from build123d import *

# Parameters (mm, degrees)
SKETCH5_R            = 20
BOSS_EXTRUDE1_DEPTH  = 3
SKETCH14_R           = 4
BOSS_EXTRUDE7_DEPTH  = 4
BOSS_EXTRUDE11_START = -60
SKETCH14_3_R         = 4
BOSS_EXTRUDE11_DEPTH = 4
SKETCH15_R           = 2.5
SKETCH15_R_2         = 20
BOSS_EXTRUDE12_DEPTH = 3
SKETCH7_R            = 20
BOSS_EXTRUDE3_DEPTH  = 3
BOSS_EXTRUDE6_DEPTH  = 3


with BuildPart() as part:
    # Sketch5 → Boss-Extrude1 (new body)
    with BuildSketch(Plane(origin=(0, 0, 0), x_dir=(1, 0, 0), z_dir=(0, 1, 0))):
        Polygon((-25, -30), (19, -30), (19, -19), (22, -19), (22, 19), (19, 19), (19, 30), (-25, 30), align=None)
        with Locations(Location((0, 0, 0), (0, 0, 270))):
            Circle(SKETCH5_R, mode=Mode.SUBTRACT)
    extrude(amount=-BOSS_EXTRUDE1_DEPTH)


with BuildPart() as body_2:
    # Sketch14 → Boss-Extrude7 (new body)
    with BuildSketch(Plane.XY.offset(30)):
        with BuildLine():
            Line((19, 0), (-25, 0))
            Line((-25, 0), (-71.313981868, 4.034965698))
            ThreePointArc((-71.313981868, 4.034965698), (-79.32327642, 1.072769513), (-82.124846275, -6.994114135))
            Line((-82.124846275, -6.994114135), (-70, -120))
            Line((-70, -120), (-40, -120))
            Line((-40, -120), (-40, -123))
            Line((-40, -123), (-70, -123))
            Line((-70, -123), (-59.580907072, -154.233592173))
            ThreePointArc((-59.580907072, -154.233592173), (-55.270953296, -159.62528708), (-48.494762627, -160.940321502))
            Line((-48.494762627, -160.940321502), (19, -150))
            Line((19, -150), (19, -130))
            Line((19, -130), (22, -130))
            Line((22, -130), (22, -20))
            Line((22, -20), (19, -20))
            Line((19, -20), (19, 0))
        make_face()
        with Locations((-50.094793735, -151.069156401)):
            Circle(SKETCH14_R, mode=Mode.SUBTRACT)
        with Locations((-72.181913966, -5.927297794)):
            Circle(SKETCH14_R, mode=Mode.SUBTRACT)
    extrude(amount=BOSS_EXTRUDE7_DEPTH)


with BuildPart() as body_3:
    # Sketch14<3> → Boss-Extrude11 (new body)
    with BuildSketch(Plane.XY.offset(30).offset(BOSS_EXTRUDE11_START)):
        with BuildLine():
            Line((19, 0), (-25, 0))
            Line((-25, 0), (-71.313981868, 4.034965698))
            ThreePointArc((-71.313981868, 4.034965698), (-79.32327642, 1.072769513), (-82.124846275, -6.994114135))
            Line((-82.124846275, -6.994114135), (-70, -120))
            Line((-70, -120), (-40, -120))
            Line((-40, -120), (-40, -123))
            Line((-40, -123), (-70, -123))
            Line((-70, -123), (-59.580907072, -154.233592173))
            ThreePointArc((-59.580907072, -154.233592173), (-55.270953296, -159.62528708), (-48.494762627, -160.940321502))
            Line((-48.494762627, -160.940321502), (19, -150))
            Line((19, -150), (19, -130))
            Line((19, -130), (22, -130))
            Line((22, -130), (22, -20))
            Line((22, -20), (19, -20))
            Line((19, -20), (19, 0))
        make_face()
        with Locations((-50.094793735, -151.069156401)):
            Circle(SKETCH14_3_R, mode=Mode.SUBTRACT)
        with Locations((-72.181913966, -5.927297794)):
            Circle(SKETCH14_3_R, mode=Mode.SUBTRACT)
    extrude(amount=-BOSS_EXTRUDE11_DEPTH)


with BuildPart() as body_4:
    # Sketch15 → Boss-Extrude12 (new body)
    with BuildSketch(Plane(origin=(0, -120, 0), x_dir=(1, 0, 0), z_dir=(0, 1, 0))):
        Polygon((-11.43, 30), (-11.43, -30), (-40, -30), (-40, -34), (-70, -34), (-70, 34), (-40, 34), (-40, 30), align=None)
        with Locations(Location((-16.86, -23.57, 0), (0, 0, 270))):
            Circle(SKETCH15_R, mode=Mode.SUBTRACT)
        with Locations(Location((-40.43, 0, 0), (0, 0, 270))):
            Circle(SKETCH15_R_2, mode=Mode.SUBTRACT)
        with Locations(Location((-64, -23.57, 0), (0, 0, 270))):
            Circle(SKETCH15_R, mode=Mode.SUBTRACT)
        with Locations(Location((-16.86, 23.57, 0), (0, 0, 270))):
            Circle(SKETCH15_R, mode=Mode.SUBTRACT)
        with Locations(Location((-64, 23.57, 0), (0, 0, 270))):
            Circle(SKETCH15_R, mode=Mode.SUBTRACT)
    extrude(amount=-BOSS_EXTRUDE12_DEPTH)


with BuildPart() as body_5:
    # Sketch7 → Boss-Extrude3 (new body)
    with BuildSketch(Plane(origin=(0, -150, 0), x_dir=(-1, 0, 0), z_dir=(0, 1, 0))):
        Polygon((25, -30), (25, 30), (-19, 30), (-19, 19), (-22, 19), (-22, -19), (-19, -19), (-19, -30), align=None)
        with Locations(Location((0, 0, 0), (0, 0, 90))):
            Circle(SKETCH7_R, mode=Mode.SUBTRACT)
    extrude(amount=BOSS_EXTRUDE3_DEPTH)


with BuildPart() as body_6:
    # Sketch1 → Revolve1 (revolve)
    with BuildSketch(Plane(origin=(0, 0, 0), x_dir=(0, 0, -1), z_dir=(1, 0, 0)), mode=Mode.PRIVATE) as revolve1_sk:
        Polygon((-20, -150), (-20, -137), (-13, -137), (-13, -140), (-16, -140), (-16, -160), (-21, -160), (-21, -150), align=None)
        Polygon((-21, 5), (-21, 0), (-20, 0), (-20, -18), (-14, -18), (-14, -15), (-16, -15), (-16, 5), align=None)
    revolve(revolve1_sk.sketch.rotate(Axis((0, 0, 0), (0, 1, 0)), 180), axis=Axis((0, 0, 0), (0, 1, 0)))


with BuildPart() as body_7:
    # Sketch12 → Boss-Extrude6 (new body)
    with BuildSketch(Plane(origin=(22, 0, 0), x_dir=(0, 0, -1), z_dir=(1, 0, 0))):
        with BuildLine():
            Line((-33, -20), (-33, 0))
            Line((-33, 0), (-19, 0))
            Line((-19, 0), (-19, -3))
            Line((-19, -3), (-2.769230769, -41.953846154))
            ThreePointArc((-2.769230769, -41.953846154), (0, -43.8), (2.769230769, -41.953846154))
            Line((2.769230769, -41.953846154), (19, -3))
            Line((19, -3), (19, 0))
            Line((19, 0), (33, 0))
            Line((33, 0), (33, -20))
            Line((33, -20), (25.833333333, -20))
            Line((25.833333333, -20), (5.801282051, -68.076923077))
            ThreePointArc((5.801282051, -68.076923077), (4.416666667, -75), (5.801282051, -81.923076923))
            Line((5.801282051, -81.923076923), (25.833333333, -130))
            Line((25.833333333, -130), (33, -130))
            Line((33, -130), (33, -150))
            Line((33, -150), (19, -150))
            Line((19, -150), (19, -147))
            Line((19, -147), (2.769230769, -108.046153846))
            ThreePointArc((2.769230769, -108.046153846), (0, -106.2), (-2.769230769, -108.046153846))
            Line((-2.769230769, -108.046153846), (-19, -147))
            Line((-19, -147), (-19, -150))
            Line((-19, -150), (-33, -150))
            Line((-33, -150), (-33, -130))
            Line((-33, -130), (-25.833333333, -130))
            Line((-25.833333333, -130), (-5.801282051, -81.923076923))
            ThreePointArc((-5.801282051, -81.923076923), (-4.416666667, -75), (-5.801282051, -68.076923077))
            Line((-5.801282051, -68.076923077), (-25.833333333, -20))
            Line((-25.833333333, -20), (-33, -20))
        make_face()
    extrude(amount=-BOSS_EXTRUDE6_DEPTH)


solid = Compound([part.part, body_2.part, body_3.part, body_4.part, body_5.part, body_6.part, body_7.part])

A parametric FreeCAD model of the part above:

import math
import FreeCAD as App
import Part
import Sketcher

V = App.Vector

doc = App.newDocument("Part")
body = doc.addObject("PartDesign::Body", "Body")

# Sketch on XZ plane
sketch1 = body.newObject("Sketcher::SketchObject", "Sketch")
sketch1.AttachmentSupport = (doc.getObject("XZ_Plane"), [""])
sketch1.MapMode = "FlatFace"
sketch1.addGeometry(Part.LineSegment(V(-25, 30, 0), V(19, 30, 0)), False)
sketch1.addGeometry(Part.LineSegment(V(19, 30, 0), V(19, 19, 0)), False)
sketch1.addGeometry(Part.LineSegment(V(19, 19, 0), V(22, 19, 0)), False)
sketch1.addGeometry(Part.LineSegment(V(22, 19, 0), V(22, -19, 0)), False)
sketch1.addGeometry(Part.LineSegment(V(22, -19, 0), V(19, -19, 0)), False)
sketch1.addGeometry(Part.LineSegment(V(19, -19, 0), V(19, -30, 0)), False)
sketch1.addGeometry(Part.LineSegment(V(19, -30, 0), V(-25, -30, 0)), False)
sketch1.addGeometry(Part.LineSegment(V(-25, -30, 0), V(-25, 30, 0)), False)
sketch1.addGeometry(Part.Circle(V(0, 0, 0), V(0, 0, 1), 20), False)
sketch1.addConstraint(Sketcher.Constraint("Coincident", 0, 2, 1, 1))
sketch1.addConstraint(Sketcher.Constraint("Coincident", 1, 2, 2, 1))
sketch1.addConstraint(Sketcher.Constraint("Coincident", 2, 2, 3, 1))
sketch1.addConstraint(Sketcher.Constraint("Coincident", 3, 2, 4, 1))
sketch1.addConstraint(Sketcher.Constraint("Coincident", 4, 2, 5, 1))
sketch1.addConstraint(Sketcher.Constraint("Coincident", 5, 2, 6, 1))
sketch1.addConstraint(Sketcher.Constraint("Coincident", 6, 2, 7, 1))
sketch1.addConstraint(Sketcher.Constraint("Coincident", 7, 2, 0, 1))
sketch1.addConstraint(Sketcher.Constraint("Horizontal", 0))
sketch1.addConstraint(Sketcher.Constraint("Vertical", 1))
sketch1.addConstraint(Sketcher.Constraint("Horizontal", 2))
sketch1.addConstraint(Sketcher.Constraint("Vertical", 3))
sketch1.addConstraint(Sketcher.Constraint("Horizontal", 4))
sketch1.addConstraint(Sketcher.Constraint("Vertical", 5))
sketch1.addConstraint(Sketcher.Constraint("Horizontal", 6))
sketch1.addConstraint(Sketcher.Constraint("Vertical", 7))
sketch1.addConstraint(Sketcher.Constraint("Coincident", 8, 3, -1, 1))
sketch1.addConstraint(Sketcher.Constraint("Symmetric", 1, 2, 4, 2, -1))
sketch1.addConstraint(Sketcher.Constraint("Equal", 1, 5))
sketch1.addConstraint(Sketcher.Constraint("Diameter", 8, 40.0))
sketch1.addConstraint(Sketcher.Constraint("DistanceX", 0, 1, 0, 2, 44.0))
sketch1.addConstraint(Sketcher.Constraint("DistanceX", 2, 1, 2, 2, 3.0))
sketch1.addConstraint(Sketcher.Constraint("DistanceY", 1, 2, 1, 1, 11.0))
sketch1.addConstraint(Sketcher.Constraint("DistanceY", 3, 2, 3, 1, 38.0))
sketch1.addConstraint(Sketcher.Constraint("DistanceX", -1, 1, 0, 2, 19.0))
pad1 = body.newObject("PartDesign::Pad", "Pad")
pad1.Profile = sketch1
pad1.Length = 3
body2 = doc.addObject("PartDesign::Body", "Body001")

# Sketch on XY plane
sketch2 = body2.newObject("Sketcher::SketchObject", "Sketch001")
sketch2.AttachmentSupport = (doc.getObject("XY_Plane001"), [""])
sketch2.MapMode = "FlatFace"
sketch2.AttachmentOffset = App.Placement(V(0, 0, 30), App.Rotation())
sketch2.addGeometry(Part.LineSegment(V(19, 0, 0), V(-25, 0, 0)), False)
sketch2.addGeometry(Part.LineSegment(V(-25, 0, 0), V(-71.3, 4, 0)), False)
sketch2.addGeometry(Part.ArcOfCircle(Part.Circle(V(-72.2, -5.9, 0), V(0, 0, 1), 10), math.radians(85), math.radians(186)), False)
sketch2.addGeometry(Part.LineSegment(V(-82.1, -7, 0), V(-70, -120, 0)), False)
sketch2.addGeometry(Part.LineSegment(V(-70, -120, 0), V(-40, -120, 0)), False)
sketch2.addGeometry(Part.LineSegment(V(-40, -120, 0), V(-40, -123, 0)), False)
sketch2.addGeometry(Part.LineSegment(V(-40, -123, 0), V(-70, -123, 0)), False)
sketch2.addGeometry(Part.LineSegment(V(-70, -123, 0), V(-59.6, -154.2, 0)), False)
sketch2.addGeometry(Part.ArcOfCircle(Part.Circle(V(-50.1, -151.1, 0), V(0, 0, 1), 10), math.radians(-162), math.radians(-81)), False)
sketch2.addGeometry(Part.LineSegment(V(-48.5, -160.9, 0), V(19, -150, 0)), False)
sketch2.addGeometry(Part.LineSegment(V(19, -150, 0), V(19, -130, 0)), False)
sketch2.addGeometry(Part.LineSegment(V(19, -130, 0), V(22, -130, 0)), False)
sketch2.addGeometry(Part.LineSegment(V(22, -130, 0), V(22, -20, 0)), False)
sketch2.addGeometry(Part.LineSegment(V(22, -20, 0), V(19, -20, 0)), False)
sketch2.addGeometry(Part.LineSegment(V(19, -20, 0), V(19, 0, 0)), False)
sketch2.addGeometry(Part.Circle(V(-50.1, -151.1, 0), V(0, 0, 1), 4), False)
sketch2.addGeometry(Part.Circle(V(-72.2, -5.9, 0), V(0, 0, 1), 4), False)
sketch2.addConstraint(Sketcher.Constraint("Coincident", 0, 2, 1, 1))
sketch2.addConstraint(Sketcher.Constraint("Tangent", 1, 2, 2, 1))
sketch2.addConstraint(Sketcher.Constraint("Tangent", 2, 2, 3, 1))
sketch2.addConstraint(Sketcher.Constraint("Coincident", 3, 2, 4, 1))
sketch2.addConstraint(Sketcher.Constraint("Coincident", 4, 2, 5, 1))
sketch2.addConstraint(Sketcher.Constraint("Coincident", 5, 2, 6, 1))
sketch2.addConstraint(Sketcher.Constraint("Coincident", 6, 2, 7, 1))
sketch2.addConstraint(Sketcher.Constraint("Tangent", 7, 2, 8, 1))
sketch2.addConstraint(Sketcher.Constraint("Tangent", 8, 2, 9, 1))
sketch2.addConstraint(Sketcher.Constraint("Coincident", 9, 2, 10, 1))
sketch2.addConstraint(Sketcher.Constraint("Coincident", 10, 2, 11, 1))
sketch2.addConstraint(Sketcher.Constraint("Coincident", 11, 2, 12, 1))
sketch2.addConstraint(Sketcher.Constraint("Coincident", 12, 2, 13, 1))
sketch2.addConstraint(Sketcher.Constraint("Coincident", 13, 2, 14, 1))
sketch2.addConstraint(Sketcher.Constraint("Coincident", 14, 2, 0, 1))
sketch2.addConstraint(Sketcher.Constraint("Horizontal", 0))
sketch2.addConstraint(Sketcher.Constraint("Horizontal", 4))
sketch2.addConstraint(Sketcher.Constraint("Vertical", 5))
sketch2.addConstraint(Sketcher.Constraint("Horizontal", 6))
sketch2.addConstraint(Sketcher.Constraint("Vertical", 10))
sketch2.addConstraint(Sketcher.Constraint("Horizontal", 11))
sketch2.addConstraint(Sketcher.Constraint("Vertical", 12))
sketch2.addConstraint(Sketcher.Constraint("Horizontal", 13))
sketch2.addConstraint(Sketcher.Constraint("Vertical", 14))
sketch2.addConstraint(Sketcher.Constraint("Coincident", 15, 3, 8, 3))
sketch2.addConstraint(Sketcher.Constraint("Coincident", 16, 3, 2, 3))
sketch2.addConstraint(Sketcher.Constraint("Equal", 2, 8))
sketch2.addConstraint(Sketcher.Constraint("Equal", 15, 16))
sketch2.addConstraint(Sketcher.Constraint("PointOnObject", 0, 2, -1))
sketch2.addConstraint(Sketcher.Constraint("Vertical", 3, 2, 6, 2))
sketch2.addConstraint(Sketcher.Constraint("Vertical", 10, 2, 13, 2))
sketch2.addConstraint(Sketcher.Constraint("Equal", 13, 5))
sketch2.addConstraint(Sketcher.Constraint("Equal", 10, 14))
sketch2.addConstraint(Sketcher.Constraint("Diameter", 15, 8.0))
sketch2.addConstraint(Sketcher.Constraint("Radius", 2, 10.0))
sketch2.addConstraint(Sketcher.Constraint("DistanceX", 0, 2, 0, 1, 44.0))
sketch2.addConstraint(Sketcher.Constraint("DistanceX", 4, 1, 4, 2, 30.0))
sketch2.addConstraint(Sketcher.Constraint("DistanceX", 11, 1, 11, 2, 3.0))
sketch2.addConstraint(Sketcher.Constraint("DistanceY", 10, 1, 10, 2, 20.0))
sketch2.addConstraint(Sketcher.Constraint("DistanceY", 12, 1, 12, 2, 110.0))
sketch2.addConstraint(Sketcher.Constraint("DistanceX", 0, 2, -1, 1, 25.0))
sketch2.addConstraint(Sketcher.Constraint("DistanceX", 3, 2, -1, 1, 70.0))
sketch2.addConstraint(Sketcher.Constraint("DistanceY", 3, 2, -1, 1, 120.0))
sketch2.addConstraint(Sketcher.Constraint("Distance", 9, 68.37568))
sketch2.addConstraint(Sketcher.Constraint("DistanceX", 1, 2, -1, 1, 71.313982))
sketch2.addConstraint(Sketcher.Constraint("DistanceY", 8, 2, -1, 1, 160.940322))
sketch2.addConstraint(Sketcher.Constraint("DistanceX", 2, 3, 8, 3, 22.08712))
pad2 = body2.newObject("PartDesign::Pad", "Pad001")
pad2.Profile = sketch2
pad2.Length = 4
body3 = doc.addObject("PartDesign::Body", "Body002")

# Sketch on XY plane
sketch3 = body3.newObject("Sketcher::SketchObject", "Sketch002")
sketch3.AttachmentSupport = (doc.getObject("XY_Plane002"), [""])
sketch3.MapMode = "FlatFace"
sketch3.AttachmentOffset = App.Placement(V(0, 0, -30), App.Rotation())
sketch3.addGeometry(Part.LineSegment(V(19, 0, 0), V(-25, 0, 0)), False)
sketch3.addGeometry(Part.LineSegment(V(-25, 0, 0), V(-71.3, 4, 0)), False)
sketch3.addGeometry(Part.ArcOfCircle(Part.Circle(V(-72.2, -5.9, 0), V(0, 0, 1), 10), math.radians(85), math.radians(186)), False)
sketch3.addGeometry(Part.LineSegment(V(-82.1, -7, 0), V(-70, -120, 0)), False)
sketch3.addGeometry(Part.LineSegment(V(-70, -120, 0), V(-40, -120, 0)), False)
sketch3.addGeometry(Part.LineSegment(V(-40, -120, 0), V(-40, -123, 0)), False)
sketch3.addGeometry(Part.LineSegment(V(-40, -123, 0), V(-70, -123, 0)), False)
sketch3.addGeometry(Part.LineSegment(V(-70, -123, 0), V(-59.6, -154.2, 0)), False)
sketch3.addGeometry(Part.ArcOfCircle(Part.Circle(V(-50.1, -151.1, 0), V(0, 0, 1), 10), math.radians(-162), math.radians(-81)), False)
sketch3.addGeometry(Part.LineSegment(V(-48.5, -160.9, 0), V(19, -150, 0)), False)
sketch3.addGeometry(Part.LineSegment(V(19, -150, 0), V(19, -130, 0)), False)
sketch3.addGeometry(Part.LineSegment(V(19, -130, 0), V(22, -130, 0)), False)
sketch3.addGeometry(Part.LineSegment(V(22, -130, 0), V(22, -20, 0)), False)
sketch3.addGeometry(Part.LineSegment(V(22, -20, 0), V(19, -20, 0)), False)
sketch3.addGeometry(Part.LineSegment(V(19, -20, 0), V(19, 0, 0)), False)
sketch3.addGeometry(Part.Circle(V(-50.1, -151.1, 0), V(0, 0, 1), 4), False)
sketch3.addGeometry(Part.Circle(V(-72.2, -5.9, 0), V(0, 0, 1), 4), False)
sketch3.addConstraint(Sketcher.Constraint("Coincident", 0, 2, 1, 1))
sketch3.addConstraint(Sketcher.Constraint("Tangent", 1, 2, 2, 1))
sketch3.addConstraint(Sketcher.Constraint("Tangent", 2, 2, 3, 1))
sketch3.addConstraint(Sketcher.Constraint("Coincident", 3, 2, 4, 1))
sketch3.addConstraint(Sketcher.Constraint("Coincident", 4, 2, 5, 1))
sketch3.addConstraint(Sketcher.Constraint("Coincident", 5, 2, 6, 1))
sketch3.addConstraint(Sketcher.Constraint("Coincident", 6, 2, 7, 1))
sketch3.addConstraint(Sketcher.Constraint("Tangent", 7, 2, 8, 1))
sketch3.addConstraint(Sketcher.Constraint("Tangent", 8, 2, 9, 1))
sketch3.addConstraint(Sketcher.Constraint("Coincident", 9, 2, 10, 1))
sketch3.addConstraint(Sketcher.Constraint("Coincident", 10, 2, 11, 1))
sketch3.addConstraint(Sketcher.Constraint("Coincident", 11, 2, 12, 1))
sketch3.addConstraint(Sketcher.Constraint("Coincident", 12, 2, 13, 1))
sketch3.addConstraint(Sketcher.Constraint("Coincident", 13, 2, 14, 1))
sketch3.addConstraint(Sketcher.Constraint("Coincident", 14, 2, 0, 1))
sketch3.addConstraint(Sketcher.Constraint("Horizontal", 0))
sketch3.addConstraint(Sketcher.Constraint("Horizontal", 4))
sketch3.addConstraint(Sketcher.Constraint("Vertical", 5))
sketch3.addConstraint(Sketcher.Constraint("Horizontal", 6))
sketch3.addConstraint(Sketcher.Constraint("Vertical", 10))
sketch3.addConstraint(Sketcher.Constraint("Horizontal", 11))
sketch3.addConstraint(Sketcher.Constraint("Vertical", 12))
sketch3.addConstraint(Sketcher.Constraint("Horizontal", 13))
sketch3.addConstraint(Sketcher.Constraint("Vertical", 14))
sketch3.addConstraint(Sketcher.Constraint("Coincident", 15, 3, 8, 3))
sketch3.addConstraint(Sketcher.Constraint("Coincident", 16, 3, 2, 3))
sketch3.addConstraint(Sketcher.Constraint("Equal", 2, 8))
sketch3.addConstraint(Sketcher.Constraint("Equal", 15, 16))
sketch3.addConstraint(Sketcher.Constraint("PointOnObject", 0, 2, -1))
sketch3.addConstraint(Sketcher.Constraint("Vertical", 3, 2, 6, 2))
sketch3.addConstraint(Sketcher.Constraint("Vertical", 10, 2, 13, 2))
sketch3.addConstraint(Sketcher.Constraint("Equal", 13, 5))
sketch3.addConstraint(Sketcher.Constraint("Equal", 10, 14))
sketch3.addConstraint(Sketcher.Constraint("Diameter", 15, 8.0))
sketch3.addConstraint(Sketcher.Constraint("Radius", 2, 10.0))
sketch3.addConstraint(Sketcher.Constraint("DistanceX", 0, 2, 0, 1, 44.0))
sketch3.addConstraint(Sketcher.Constraint("DistanceX", 4, 1, 4, 2, 30.0))
sketch3.addConstraint(Sketcher.Constraint("DistanceX", 11, 1, 11, 2, 3.0))
sketch3.addConstraint(Sketcher.Constraint("DistanceY", 10, 1, 10, 2, 20.0))
sketch3.addConstraint(Sketcher.Constraint("DistanceY", 12, 1, 12, 2, 110.0))
sketch3.addConstraint(Sketcher.Constraint("DistanceX", 0, 2, -1, 1, 25.0))
sketch3.addConstraint(Sketcher.Constraint("DistanceX", 3, 2, -1, 1, 70.0))
sketch3.addConstraint(Sketcher.Constraint("DistanceY", 3, 2, -1, 1, 120.0))
sketch3.addConstraint(Sketcher.Constraint("Distance", 9, 68.37568))
sketch3.addConstraint(Sketcher.Constraint("DistanceX", 1, 2, -1, 1, 71.313982))
sketch3.addConstraint(Sketcher.Constraint("DistanceY", 8, 2, -1, 1, 160.940322))
sketch3.addConstraint(Sketcher.Constraint("DistanceX", 2, 3, 8, 3, 22.08712))
pad3 = body3.newObject("PartDesign::Pad", "Pad002")
pad3.Profile = sketch3
pad3.Length = 4
pad3.Reversed = True
body4 = doc.addObject("PartDesign::Body", "Body003")

# Sketch on XZ plane
sketch4 = body4.newObject("Sketcher::SketchObject", "Sketch003")
sketch4.AttachmentSupport = (doc.getObject("XZ_Plane003"), [""])
sketch4.MapMode = "FlatFace"
sketch4.AttachmentOffset = App.Placement(V(0, 0, 120), App.Rotation())
sketch4.addGeometry(Part.LineSegment(V(-11.4, 30, 0), V(-11.4, -30, 0)), False)
sketch4.addGeometry(Part.LineSegment(V(-11.4, -30, 0), V(-40, -30, 0)), False)
sketch4.addGeometry(Part.LineSegment(V(-40, -30, 0), V(-40, -34, 0)), False)
sketch4.addGeometry(Part.LineSegment(V(-40, -34, 0), V(-70, -34, 0)), False)
sketch4.addGeometry(Part.LineSegment(V(-70, -34, 0), V(-70, 34, 0)), False)
sketch4.addGeometry(Part.LineSegment(V(-70, 34, 0), V(-40, 34, 0)), False)
sketch4.addGeometry(Part.LineSegment(V(-40, 34, 0), V(-40, 30, 0)), False)
sketch4.addGeometry(Part.LineSegment(V(-40, 30, 0), V(-11.4, 30, 0)), False)
sketch4.addGeometry(Part.Circle(V(-16.9, 23.6, 0), V(0, 0, 1), 2.5), False)
sketch4.addGeometry(Part.Circle(V(-64, 23.6, 0), V(0, 0, 1), 2.5), False)
sketch4.addGeometry(Part.Circle(V(-16.9, -23.6, 0), V(0, 0, 1), 2.5), False)
sketch4.addGeometry(Part.Circle(V(-40.4, 0, 0), V(0, 0, 1), 20), False)
sketch4.addGeometry(Part.Circle(V(-64, -23.6, 0), V(0, 0, 1), 2.5), False)
sketch4.addConstraint(Sketcher.Constraint("Coincident", 0, 2, 1, 1))
sketch4.addConstraint(Sketcher.Constraint("Coincident", 1, 2, 2, 1))
sketch4.addConstraint(Sketcher.Constraint("Coincident", 2, 2, 3, 1))
sketch4.addConstraint(Sketcher.Constraint("Coincident", 3, 2, 4, 1))
sketch4.addConstraint(Sketcher.Constraint("Coincident", 4, 2, 5, 1))
sketch4.addConstraint(Sketcher.Constraint("Coincident", 5, 2, 6, 1))
sketch4.addConstraint(Sketcher.Constraint("Coincident", 6, 2, 7, 1))
sketch4.addConstraint(Sketcher.Constraint("Coincident", 7, 2, 0, 1))
sketch4.addConstraint(Sketcher.Constraint("Vertical", 0))
sketch4.addConstraint(Sketcher.Constraint("Horizontal", 1))
sketch4.addConstraint(Sketcher.Constraint("Vertical", 2))
sketch4.addConstraint(Sketcher.Constraint("Horizontal", 3))
sketch4.addConstraint(Sketcher.Constraint("Vertical", 4))
sketch4.addConstraint(Sketcher.Constraint("Horizontal", 5))
sketch4.addConstraint(Sketcher.Constraint("Vertical", 6))
sketch4.addConstraint(Sketcher.Constraint("Horizontal", 7))
sketch4.addConstraint(Sketcher.Constraint("Equal", 8, 9))
sketch4.addConstraint(Sketcher.Constraint("Equal", 9, 10))
sketch4.addConstraint(Sketcher.Constraint("Equal", 10, 12))
sketch4.addConstraint(Sketcher.Constraint("Symmetric", 8, 3, 10, 3, -1))
sketch4.addConstraint(Sketcher.Constraint("Symmetric", 9, 3, 12, 3, -1))
sketch4.addConstraint(Sketcher.Constraint("Symmetric", 2, 2, 5, 2, -1))
sketch4.addConstraint(Sketcher.Constraint("PointOnObject", 11, 3, -1))
sketch4.addConstraint(Sketcher.Constraint("Horizontal", 8, 3, 9, 3))
sketch4.addConstraint(Sketcher.Constraint("Equal", 2, 6))
sketch4.addConstraint(Sketcher.Constraint("Diameter", 8, 5.0))
sketch4.addConstraint(Sketcher.Constraint("Diameter", 11, 40.0))
sketch4.addConstraint(Sketcher.Constraint("DistanceX", 3, 2, 3, 1, 30.0))
sketch4.addConstraint(Sketcher.Constraint("DistanceY", 0, 2, 0, 1, 60.0))
sketch4.addConstraint(Sketcher.Constraint("DistanceY", 2, 2, 2, 1, 4.0))
sketch4.addConstraint(Sketcher.Constraint("DistanceX", 9, 3, -1, 1, 64.0))
sketch4.addConstraint(Sketcher.Constraint("DistanceX", 1, 2, -1, 1, 40.0))
sketch4.addConstraint(Sketcher.Constraint("DistanceX", 11, 3, 0, 2, 29.0))
sketch4.addConstraint(Sketcher.Constraint("DistanceX", 1, 2, 1, 1, 28.57))
sketch4.addConstraint(Sketcher.Constraint("DistanceX", 8, 3, -1, 1, 16.86))
sketch4.addConstraint(Sketcher.Constraint("DistanceY", -1, 1, 8, 3, 23.57))
pad4 = body4.newObject("PartDesign::Pad", "Pad003")
pad4.Profile = sketch4
pad4.Length = 3
body5 = doc.addObject("PartDesign::Body", "Body004")

# Sketch on XZ plane
sketch5 = body5.newObject("Sketcher::SketchObject", "Sketch004")
sketch5.AttachmentSupport = (doc.getObject("XZ_Plane004"), [""])
sketch5.MapMode = "FlatFace"
sketch5.AttachmentOffset = App.Placement(V(0, 0, 150), App.Rotation())
sketch5.addGeometry(Part.LineSegment(V(-25, -30, 0), V(-25, 30, 0)), False)
sketch5.addGeometry(Part.LineSegment(V(-25, 30, 0), V(19, 30, 0)), False)
sketch5.addGeometry(Part.LineSegment(V(19, 30, 0), V(19, 19, 0)), False)
sketch5.addGeometry(Part.LineSegment(V(19, 19, 0), V(22, 19, 0)), False)
sketch5.addGeometry(Part.LineSegment(V(22, 19, 0), V(22, -19, 0)), False)
sketch5.addGeometry(Part.LineSegment(V(22, -19, 0), V(19, -19, 0)), False)
sketch5.addGeometry(Part.LineSegment(V(19, -19, 0), V(19, -30, 0)), False)
sketch5.addGeometry(Part.LineSegment(V(19, -30, 0), V(-25, -30, 0)), False)
sketch5.addGeometry(Part.Circle(V(0, 0, 0), V(0, 0, 1), 20), False)
sketch5.addConstraint(Sketcher.Constraint("Coincident", 0, 2, 1, 1))
sketch5.addConstraint(Sketcher.Constraint("Coincident", 1, 2, 2, 1))
sketch5.addConstraint(Sketcher.Constraint("Coincident", 2, 2, 3, 1))
sketch5.addConstraint(Sketcher.Constraint("Coincident", 3, 2, 4, 1))
sketch5.addConstraint(Sketcher.Constraint("Coincident", 4, 2, 5, 1))
sketch5.addConstraint(Sketcher.Constraint("Coincident", 5, 2, 6, 1))
sketch5.addConstraint(Sketcher.Constraint("Coincident", 6, 2, 7, 1))
sketch5.addConstraint(Sketcher.Constraint("Coincident", 7, 2, 0, 1))
sketch5.addConstraint(Sketcher.Constraint("Vertical", 0))
sketch5.addConstraint(Sketcher.Constraint("Horizontal", 1))
sketch5.addConstraint(Sketcher.Constraint("Vertical", 2))
sketch5.addConstraint(Sketcher.Constraint("Horizontal", 3))
sketch5.addConstraint(Sketcher.Constraint("Vertical", 4))
sketch5.addConstraint(Sketcher.Constraint("Horizontal", 5))
sketch5.addConstraint(Sketcher.Constraint("Vertical", 6))
sketch5.addConstraint(Sketcher.Constraint("Horizontal", 7))
sketch5.addConstraint(Sketcher.Constraint("Coincident", 8, 3, -1, 1))
sketch5.addConstraint(Sketcher.Constraint("Symmetric", 2, 2, 5, 2, -1))
sketch5.addConstraint(Sketcher.Constraint("Equal", 2, 6))
sketch5.addConstraint(Sketcher.Constraint("Diameter", 8, 40.0))
sketch5.addConstraint(Sketcher.Constraint("DistanceX", 1, 1, 1, 2, 44.0))
sketch5.addConstraint(Sketcher.Constraint("DistanceX", 3, 1, 3, 2, 3.0))
sketch5.addConstraint(Sketcher.Constraint("DistanceY", 0, 1, 0, 2, 60.0))
sketch5.addConstraint(Sketcher.Constraint("DistanceY", 2, 2, 2, 1, 11.0))
sketch5.addConstraint(Sketcher.Constraint("DistanceX", 0, 2, -1, 1, 25.0))
pad5 = body5.newObject("PartDesign::Pad", "Pad004")
pad5.Profile = sketch5
pad5.Length = 3
pad5.Reversed = True
body6 = doc.addObject("PartDesign::Body", "Body005")
body6.AllowCompound = True

# Sketch on YZ plane
sketch6 = body6.newObject("Sketcher::SketchObject", "Sketch005")
sketch6.AttachmentSupport = (doc.getObject("YZ_Plane005"), [""])
sketch6.MapMode = "FlatFace"
sketch6.addGeometry(Part.LineSegment(V(-137, 20, 0), V(-150, 20, 0)), False)
sketch6.addGeometry(Part.LineSegment(V(-150, 20, 0), V(-150, 21, 0)), False)
sketch6.addGeometry(Part.LineSegment(V(-150, 21, 0), V(-160, 21, 0)), False)
sketch6.addGeometry(Part.LineSegment(V(-160, 21, 0), V(-160, 16, 0)), False)
sketch6.addGeometry(Part.LineSegment(V(-160, 16, 0), V(-140, 16, 0)), False)
sketch6.addGeometry(Part.LineSegment(V(-140, 16, 0), V(-140, 13, 0)), False)
sketch6.addGeometry(Part.LineSegment(V(-140, 13, 0), V(-137, 13, 0)), False)
sketch6.addGeometry(Part.LineSegment(V(-137, 13, 0), V(-137, 20, 0)), False)
sketch6.addGeometry(Part.LineSegment(V(5, 21, 0), V(0, 21, 0)), False)
sketch6.addGeometry(Part.LineSegment(V(0, 21, 0), V(0, 20, 0)), False)
sketch6.addGeometry(Part.LineSegment(V(0, 20, 0), V(-18, 20, 0)), False)
sketch6.addGeometry(Part.LineSegment(V(-18, 20, 0), V(-18, 14, 0)), False)
sketch6.addGeometry(Part.LineSegment(V(-18, 14, 0), V(-15, 14, 0)), False)
sketch6.addGeometry(Part.LineSegment(V(-15, 14, 0), V(-15, 16, 0)), False)
sketch6.addGeometry(Part.LineSegment(V(-15, 16, 0), V(5, 16, 0)), False)
sketch6.addGeometry(Part.LineSegment(V(5, 16, 0), V(5, 21, 0)), False)
sketch6.addConstraint(Sketcher.Constraint("Coincident", 0, 2, 1, 1))
sketch6.addConstraint(Sketcher.Constraint("Coincident", 1, 2, 2, 1))
sketch6.addConstraint(Sketcher.Constraint("Coincident", 2, 2, 3, 1))
sketch6.addConstraint(Sketcher.Constraint("Coincident", 3, 2, 4, 1))
sketch6.addConstraint(Sketcher.Constraint("Coincident", 4, 2, 5, 1))
sketch6.addConstraint(Sketcher.Constraint("Coincident", 5, 2, 6, 1))
sketch6.addConstraint(Sketcher.Constraint("Coincident", 6, 2, 7, 1))
sketch6.addConstraint(Sketcher.Constraint("Coincident", 7, 2, 0, 1))
sketch6.addConstraint(Sketcher.Constraint("Coincident", 8, 2, 9, 1))
sketch6.addConstraint(Sketcher.Constraint("Coincident", 9, 2, 10, 1))
sketch6.addConstraint(Sketcher.Constraint("Coincident", 10, 2, 11, 1))
sketch6.addConstraint(Sketcher.Constraint("Coincident", 11, 2, 12, 1))
sketch6.addConstraint(Sketcher.Constraint("Coincident", 12, 2, 13, 1))
sketch6.addConstraint(Sketcher.Constraint("Coincident", 13, 2, 14, 1))
sketch6.addConstraint(Sketcher.Constraint("Coincident", 14, 2, 15, 1))
sketch6.addConstraint(Sketcher.Constraint("Coincident", 15, 2, 8, 1))
sketch6.addConstraint(Sketcher.Constraint("Horizontal", 0))
sketch6.addConstraint(Sketcher.Constraint("Vertical", 1))
sketch6.addConstraint(Sketcher.Constraint("Horizontal", 2))
sketch6.addConstraint(Sketcher.Constraint("Vertical", 3))
sketch6.addConstraint(Sketcher.Constraint("Horizontal", 4))
sketch6.addConstraint(Sketcher.Constraint("Vertical", 5))
sketch6.addConstraint(Sketcher.Constraint("Horizontal", 6))
sketch6.addConstraint(Sketcher.Constraint("Vertical", 7))
sketch6.addConstraint(Sketcher.Constraint("Horizontal", 8))
sketch6.addConstraint(Sketcher.Constraint("Vertical", 9))
sketch6.addConstraint(Sketcher.Constraint("Horizontal", 10))
sketch6.addConstraint(Sketcher.Constraint("Vertical", 11))
sketch6.addConstraint(Sketcher.Constraint("Horizontal", 12))
sketch6.addConstraint(Sketcher.Constraint("Vertical", 13))
sketch6.addConstraint(Sketcher.Constraint("Horizontal", 14))
sketch6.addConstraint(Sketcher.Constraint("Vertical", 15))
sketch6.addConstraint(Sketcher.Constraint("PointOnObject", 8, 2, -2))
sketch6.addConstraint(Sketcher.Constraint("Horizontal", 2, 2, 8, 2))
sketch6.addConstraint(Sketcher.Constraint("Horizontal", 7, 2, 9, 2))
sketch6.addConstraint(Sketcher.Constraint("Horizontal", 4, 2, 13, 2))
sketch6.addConstraint(Sketcher.Constraint("Equal", 6, 12))
sketch6.addConstraint(Sketcher.Constraint("Equal", 4, 14))
sketch6.addConstraint(Sketcher.Constraint("Equal", 8, 3))
sketch6.addConstraint(Sketcher.Constraint("Equal", 12, 5))
sketch6.addConstraint(Sketcher.Constraint("DistanceX", 0, 2, 0, 1, 13.0))
sketch6.addConstraint(Sketcher.Constraint("DistanceX", 2, 2, 2, 1, 10.0))
sketch6.addConstraint(Sketcher.Constraint("DistanceX", 4, 1, 4, 2, 20.0))
sketch6.addConstraint(Sketcher.Constraint("DistanceX", 8, 2, 8, 1, 5.0))
sketch6.addConstraint(Sketcher.Constraint("DistanceY", 1, 1, 1, 2, 1.0))
sketch6.addConstraint(Sketcher.Constraint("DistanceY", 11, 2, 11, 1, 6.0))
sketch6.addConstraint(Sketcher.Constraint("DistanceX", 0, 2, -1, 1, 150.0))
sketch6.addConstraint(Sketcher.Constraint("DistanceY", -1, 1, 0, 2, 20.0))
revolution = body6.newObject("PartDesign::Revolution", "Revolution")
revolution.Profile = sketch6
revolution.ReferenceAxis = (sketch6, ["H_Axis"])
revolution.Angle = 360
body7 = doc.addObject("PartDesign::Body", "Body006")

# Sketch on YZ plane
sketch7 = body7.newObject("Sketcher::SketchObject", "Sketch006")
sketch7.AttachmentSupport = (doc.getObject("YZ_Plane006"), [""])
sketch7.MapMode = "FlatFace"
sketch7.AttachmentOffset = App.Placement(V(0, 0, 22), App.Rotation())
sketch7.addGeometry(Part.LineSegment(V(0, 33, 0), V(-20, 33, 0)), False)
sketch7.addGeometry(Part.LineSegment(V(-20, 33, 0), V(-20, 25.8, 0)), False)
sketch7.addGeometry(Part.LineSegment(V(-20, 25.8, 0), V(-68.1, 5.8, 0)), False)
sketch7.addGeometry(Part.ArcOfCircle(Part.Circle(V(-75, 22.4, 0), V(0, 0, 1), 18), math.radians(-113), math.radians(-67)), False)
sketch7.addGeometry(Part.LineSegment(V(-81.9, 5.8, 0), V(-130, 25.8, 0)), False)
sketch7.addGeometry(Part.LineSegment(V(-130, 25.8, 0), V(-130, 33, 0)), False)
sketch7.addGeometry(Part.LineSegment(V(-130, 33, 0), V(-150, 33, 0)), False)
sketch7.addGeometry(Part.LineSegment(V(-150, 33, 0), V(-150, 19, 0)), False)
sketch7.addGeometry(Part.LineSegment(V(-150, 19, 0), V(-147, 19, 0)), False)
sketch7.addGeometry(Part.LineSegment(V(-147, 19, 0), V(-108, 2.8, 0)), False)
sketch7.addGeometry(Part.ArcOfCircle(Part.Circle(V(-109.2, 0, 0), V(0, 0, 1), 3), math.radians(-67), math.radians(67)), False)
sketch7.addGeometry(Part.LineSegment(V(-108, -2.8, 0), V(-147, -19, 0)), False)
sketch7.addGeometry(Part.LineSegment(V(-147, -19, 0), V(-150, -19, 0)), False)
sketch7.addGeometry(Part.LineSegment(V(-150, -19, 0), V(-150, -33, 0)), False)
sketch7.addGeometry(Part.LineSegment(V(-150, -33, 0), V(-130, -33, 0)), False)
sketch7.addGeometry(Part.LineSegment(V(-130, -33, 0), V(-130, -25.8, 0)), False)
sketch7.addGeometry(Part.LineSegment(V(-130, -25.8, 0), V(-81.9, -5.8, 0)), False)
sketch7.addGeometry(Part.ArcOfCircle(Part.Circle(V(-75, -22.4, 0), V(0, 0, 1), 18), math.radians(67), math.radians(113)), False)
sketch7.addGeometry(Part.LineSegment(V(-68.1, -5.8, 0), V(-20, -25.8, 0)), False)
sketch7.addGeometry(Part.LineSegment(V(-20, -25.8, 0), V(-20, -33, 0)), False)
sketch7.addGeometry(Part.LineSegment(V(-20, -33, 0), V(0, -33, 0)), False)
sketch7.addGeometry(Part.LineSegment(V(0, -33, 0), V(0, -19, 0)), False)
sketch7.addGeometry(Part.LineSegment(V(0, -19, 0), V(-3, -19, 0)), False)
sketch7.addGeometry(Part.LineSegment(V(-3, -19, 0), V(-42, -2.8, 0)), False)
sketch7.addGeometry(Part.ArcOfCircle(Part.Circle(V(-40.8, 0, 0), V(0, 0, 1), 3), math.radians(113), math.radians(247)), False)
sketch7.addGeometry(Part.LineSegment(V(-42, 2.8, 0), V(-3, 19, 0)), False)
sketch7.addGeometry(Part.LineSegment(V(-3, 19, 0), V(0, 19, 0)), False)
sketch7.addGeometry(Part.LineSegment(V(0, 19, 0), V(0, 33, 0)), False)
sketch7.addConstraint(Sketcher.Constraint("Coincident", 0, 2, 1, 1))
sketch7.addConstraint(Sketcher.Constraint("Coincident", 1, 2, 2, 1))
sketch7.addConstraint(Sketcher.Constraint("Tangent", 2, 2, 3, 2))
sketch7.addConstraint(Sketcher.Constraint("Tangent", 3, 1, 4, 1))
sketch7.addConstraint(Sketcher.Constraint("Coincident", 4, 2, 5, 1))
sketch7.addConstraint(Sketcher.Constraint("Coincident", 5, 2, 6, 1))
sketch7.addConstraint(Sketcher.Constraint("Coincident", 6, 2, 7, 1))
sketch7.addConstraint(Sketcher.Constraint("Coincident", 7, 2, 8, 1))
sketch7.addConstraint(Sketcher.Constraint("Coincident", 8, 2, 9, 1))
sketch7.addConstraint(Sketcher.Constraint("Tangent", 9, 2, 10, 2))
sketch7.addConstraint(Sketcher.Constraint("Tangent", 10, 1, 11, 1))
sketch7.addConstraint(Sketcher.Constraint("Coincident", 11, 2, 12, 1))
sketch7.addConstraint(Sketcher.Constraint("Coincident", 12, 2, 13, 1))
sketch7.addConstraint(Sketcher.Constraint("Coincident", 13, 2, 14, 1))
sketch7.addConstraint(Sketcher.Constraint("Coincident", 14, 2, 15, 1))
sketch7.addConstraint(Sketcher.Constraint("Coincident", 15, 2, 16, 1))
sketch7.addConstraint(Sketcher.Constraint("Tangent", 16, 2, 17, 2))
sketch7.addConstraint(Sketcher.Constraint("Tangent", 17, 1, 18, 1))
sketch7.addConstraint(Sketcher.Constraint("Coincident", 18, 2, 19, 1))
sketch7.addConstraint(Sketcher.Constraint("Coincident", 19, 2, 20, 1))
sketch7.addConstraint(Sketcher.Constraint("Coincident", 20, 2, 21, 1))
sketch7.addConstraint(Sketcher.Constraint("Coincident", 21, 2, 22, 1))
sketch7.addConstraint(Sketcher.Constraint("Coincident", 22, 2, 23, 1))
sketch7.addConstraint(Sketcher.Constraint("Tangent", 23, 2, 24, 2))
sketch7.addConstraint(Sketcher.Constraint("Tangent", 24, 1, 25, 1))
sketch7.addConstraint(Sketcher.Constraint("Coincident", 25, 2, 26, 1))
sketch7.addConstraint(Sketcher.Constraint("Coincident", 26, 2, 27, 1))
sketch7.addConstraint(Sketcher.Constraint("Coincident", 27, 2, 0, 1))
sketch7.addConstraint(Sketcher.Constraint("Horizontal", 0))
sketch7.addConstraint(Sketcher.Constraint("Vertical", 1))
sketch7.addConstraint(Sketcher.Constraint("Vertical", 5))
sketch7.addConstraint(Sketcher.Constraint("Horizontal", 6))
sketch7.addConstraint(Sketcher.Constraint("Vertical", 7))
sketch7.addConstraint(Sketcher.Constraint("Horizontal", 8))
sketch7.addConstraint(Sketcher.Constraint("Horizontal", 12))
sketch7.addConstraint(Sketcher.Constraint("Vertical", 13))
sketch7.addConstraint(Sketcher.Constraint("Horizontal", 14))
sketch7.addConstraint(Sketcher.Constraint("Vertical", 15))
sketch7.addConstraint(Sketcher.Constraint("Vertical", 19))
sketch7.addConstraint(Sketcher.Constraint("Horizontal", 20))
sketch7.addConstraint(Sketcher.Constraint("Vertical", 21))
sketch7.addConstraint(Sketcher.Constraint("Horizontal", 22))
sketch7.addConstraint(Sketcher.Constraint("Horizontal", 26))
sketch7.addConstraint(Sketcher.Constraint("Vertical", 27))
sketch7.addConstraint(Sketcher.Constraint("Equal", 3, 17))
sketch7.addConstraint(Sketcher.Constraint("Equal", 10, 24))
sketch7.addConstraint(Sketcher.Constraint("Symmetric", 21, 2, 26, 2, -1, 1))
sketch7.addConstraint(Sketcher.Constraint("Symmetric", 3, 3, 17, 3, -1))
sketch7.addConstraint(Sketcher.Constraint("Symmetric", 9, 2, 10, 1, -1))
sketch7.addConstraint(Sketcher.Constraint("Symmetric", 7, 2, 12, 2, -1))
sketch7.addConstraint(Sketcher.Constraint("Symmetric", 5, 2, 14, 2, -1))
sketch7.addConstraint(Sketcher.Constraint("Symmetric", 1, 2, 18, 2, -1))
sketch7.addConstraint(Sketcher.Constraint("Symmetric", 23, 2, 24, 1, -1))
sketch7.addConstraint(Sketcher.Constraint("Symmetric", 20, 2, 27, 2, -1))
sketch7.addConstraint(Sketcher.Constraint("Parallel", 4, 9))
sketch7.addConstraint(Sketcher.Constraint("Parallel", 2, 11))
sketch7.addConstraint(Sketcher.Constraint("Parallel", 11, 16))
sketch7.addConstraint(Sketcher.Constraint("Parallel", 18, 23))
sketch7.addConstraint(Sketcher.Constraint("Horizontal", 1, 2, 4, 2))
sketch7.addConstraint(Sketcher.Constraint("Horizontal", 0, 2, 5, 2))
sketch7.addConstraint(Sketcher.Constraint("Horizontal", 12, 2, 21, 2))
sketch7.addConstraint(Sketcher.Constraint("Equal", 0, 6))
sketch7.addConstraint(Sketcher.Constraint("Equal", 12, 22))
sketch7.addConstraint(Sketcher.Constraint("Radius", 3, 18.0))
sketch7.addConstraint(Sketcher.Constraint("Radius", 10, 3.0))
sketch7.addConstraint(Sketcher.Constraint("DistanceX", 0, 2, 0, 1, 20.0))
sketch7.addConstraint(Sketcher.Constraint("DistanceX", 8, 1, 8, 2, 3.0))
sketch7.addConstraint(Sketcher.Constraint("DistanceY", 7, 2, 7, 1, 14.0))
sketch7.addConstraint(Sketcher.Constraint("DistanceX", 3, 3, -1, 1, 75.0))
sketch7.addConstraint(Sketcher.Constraint("DistanceY", -1, 1, 0, 2, 33.0))
sketch7.addConstraint(Sketcher.Constraint("Distance", 9, 42.2))
sketch7.addConstraint(Sketcher.Constraint("DistanceY", 17, 3, 1, 2, 48.25))
pad6 = body7.newObject("PartDesign::Pad", "Pad005")
pad6.Profile = sketch7
pad6.Length = 3
pad6.Reversed = True

doc.recompute()
